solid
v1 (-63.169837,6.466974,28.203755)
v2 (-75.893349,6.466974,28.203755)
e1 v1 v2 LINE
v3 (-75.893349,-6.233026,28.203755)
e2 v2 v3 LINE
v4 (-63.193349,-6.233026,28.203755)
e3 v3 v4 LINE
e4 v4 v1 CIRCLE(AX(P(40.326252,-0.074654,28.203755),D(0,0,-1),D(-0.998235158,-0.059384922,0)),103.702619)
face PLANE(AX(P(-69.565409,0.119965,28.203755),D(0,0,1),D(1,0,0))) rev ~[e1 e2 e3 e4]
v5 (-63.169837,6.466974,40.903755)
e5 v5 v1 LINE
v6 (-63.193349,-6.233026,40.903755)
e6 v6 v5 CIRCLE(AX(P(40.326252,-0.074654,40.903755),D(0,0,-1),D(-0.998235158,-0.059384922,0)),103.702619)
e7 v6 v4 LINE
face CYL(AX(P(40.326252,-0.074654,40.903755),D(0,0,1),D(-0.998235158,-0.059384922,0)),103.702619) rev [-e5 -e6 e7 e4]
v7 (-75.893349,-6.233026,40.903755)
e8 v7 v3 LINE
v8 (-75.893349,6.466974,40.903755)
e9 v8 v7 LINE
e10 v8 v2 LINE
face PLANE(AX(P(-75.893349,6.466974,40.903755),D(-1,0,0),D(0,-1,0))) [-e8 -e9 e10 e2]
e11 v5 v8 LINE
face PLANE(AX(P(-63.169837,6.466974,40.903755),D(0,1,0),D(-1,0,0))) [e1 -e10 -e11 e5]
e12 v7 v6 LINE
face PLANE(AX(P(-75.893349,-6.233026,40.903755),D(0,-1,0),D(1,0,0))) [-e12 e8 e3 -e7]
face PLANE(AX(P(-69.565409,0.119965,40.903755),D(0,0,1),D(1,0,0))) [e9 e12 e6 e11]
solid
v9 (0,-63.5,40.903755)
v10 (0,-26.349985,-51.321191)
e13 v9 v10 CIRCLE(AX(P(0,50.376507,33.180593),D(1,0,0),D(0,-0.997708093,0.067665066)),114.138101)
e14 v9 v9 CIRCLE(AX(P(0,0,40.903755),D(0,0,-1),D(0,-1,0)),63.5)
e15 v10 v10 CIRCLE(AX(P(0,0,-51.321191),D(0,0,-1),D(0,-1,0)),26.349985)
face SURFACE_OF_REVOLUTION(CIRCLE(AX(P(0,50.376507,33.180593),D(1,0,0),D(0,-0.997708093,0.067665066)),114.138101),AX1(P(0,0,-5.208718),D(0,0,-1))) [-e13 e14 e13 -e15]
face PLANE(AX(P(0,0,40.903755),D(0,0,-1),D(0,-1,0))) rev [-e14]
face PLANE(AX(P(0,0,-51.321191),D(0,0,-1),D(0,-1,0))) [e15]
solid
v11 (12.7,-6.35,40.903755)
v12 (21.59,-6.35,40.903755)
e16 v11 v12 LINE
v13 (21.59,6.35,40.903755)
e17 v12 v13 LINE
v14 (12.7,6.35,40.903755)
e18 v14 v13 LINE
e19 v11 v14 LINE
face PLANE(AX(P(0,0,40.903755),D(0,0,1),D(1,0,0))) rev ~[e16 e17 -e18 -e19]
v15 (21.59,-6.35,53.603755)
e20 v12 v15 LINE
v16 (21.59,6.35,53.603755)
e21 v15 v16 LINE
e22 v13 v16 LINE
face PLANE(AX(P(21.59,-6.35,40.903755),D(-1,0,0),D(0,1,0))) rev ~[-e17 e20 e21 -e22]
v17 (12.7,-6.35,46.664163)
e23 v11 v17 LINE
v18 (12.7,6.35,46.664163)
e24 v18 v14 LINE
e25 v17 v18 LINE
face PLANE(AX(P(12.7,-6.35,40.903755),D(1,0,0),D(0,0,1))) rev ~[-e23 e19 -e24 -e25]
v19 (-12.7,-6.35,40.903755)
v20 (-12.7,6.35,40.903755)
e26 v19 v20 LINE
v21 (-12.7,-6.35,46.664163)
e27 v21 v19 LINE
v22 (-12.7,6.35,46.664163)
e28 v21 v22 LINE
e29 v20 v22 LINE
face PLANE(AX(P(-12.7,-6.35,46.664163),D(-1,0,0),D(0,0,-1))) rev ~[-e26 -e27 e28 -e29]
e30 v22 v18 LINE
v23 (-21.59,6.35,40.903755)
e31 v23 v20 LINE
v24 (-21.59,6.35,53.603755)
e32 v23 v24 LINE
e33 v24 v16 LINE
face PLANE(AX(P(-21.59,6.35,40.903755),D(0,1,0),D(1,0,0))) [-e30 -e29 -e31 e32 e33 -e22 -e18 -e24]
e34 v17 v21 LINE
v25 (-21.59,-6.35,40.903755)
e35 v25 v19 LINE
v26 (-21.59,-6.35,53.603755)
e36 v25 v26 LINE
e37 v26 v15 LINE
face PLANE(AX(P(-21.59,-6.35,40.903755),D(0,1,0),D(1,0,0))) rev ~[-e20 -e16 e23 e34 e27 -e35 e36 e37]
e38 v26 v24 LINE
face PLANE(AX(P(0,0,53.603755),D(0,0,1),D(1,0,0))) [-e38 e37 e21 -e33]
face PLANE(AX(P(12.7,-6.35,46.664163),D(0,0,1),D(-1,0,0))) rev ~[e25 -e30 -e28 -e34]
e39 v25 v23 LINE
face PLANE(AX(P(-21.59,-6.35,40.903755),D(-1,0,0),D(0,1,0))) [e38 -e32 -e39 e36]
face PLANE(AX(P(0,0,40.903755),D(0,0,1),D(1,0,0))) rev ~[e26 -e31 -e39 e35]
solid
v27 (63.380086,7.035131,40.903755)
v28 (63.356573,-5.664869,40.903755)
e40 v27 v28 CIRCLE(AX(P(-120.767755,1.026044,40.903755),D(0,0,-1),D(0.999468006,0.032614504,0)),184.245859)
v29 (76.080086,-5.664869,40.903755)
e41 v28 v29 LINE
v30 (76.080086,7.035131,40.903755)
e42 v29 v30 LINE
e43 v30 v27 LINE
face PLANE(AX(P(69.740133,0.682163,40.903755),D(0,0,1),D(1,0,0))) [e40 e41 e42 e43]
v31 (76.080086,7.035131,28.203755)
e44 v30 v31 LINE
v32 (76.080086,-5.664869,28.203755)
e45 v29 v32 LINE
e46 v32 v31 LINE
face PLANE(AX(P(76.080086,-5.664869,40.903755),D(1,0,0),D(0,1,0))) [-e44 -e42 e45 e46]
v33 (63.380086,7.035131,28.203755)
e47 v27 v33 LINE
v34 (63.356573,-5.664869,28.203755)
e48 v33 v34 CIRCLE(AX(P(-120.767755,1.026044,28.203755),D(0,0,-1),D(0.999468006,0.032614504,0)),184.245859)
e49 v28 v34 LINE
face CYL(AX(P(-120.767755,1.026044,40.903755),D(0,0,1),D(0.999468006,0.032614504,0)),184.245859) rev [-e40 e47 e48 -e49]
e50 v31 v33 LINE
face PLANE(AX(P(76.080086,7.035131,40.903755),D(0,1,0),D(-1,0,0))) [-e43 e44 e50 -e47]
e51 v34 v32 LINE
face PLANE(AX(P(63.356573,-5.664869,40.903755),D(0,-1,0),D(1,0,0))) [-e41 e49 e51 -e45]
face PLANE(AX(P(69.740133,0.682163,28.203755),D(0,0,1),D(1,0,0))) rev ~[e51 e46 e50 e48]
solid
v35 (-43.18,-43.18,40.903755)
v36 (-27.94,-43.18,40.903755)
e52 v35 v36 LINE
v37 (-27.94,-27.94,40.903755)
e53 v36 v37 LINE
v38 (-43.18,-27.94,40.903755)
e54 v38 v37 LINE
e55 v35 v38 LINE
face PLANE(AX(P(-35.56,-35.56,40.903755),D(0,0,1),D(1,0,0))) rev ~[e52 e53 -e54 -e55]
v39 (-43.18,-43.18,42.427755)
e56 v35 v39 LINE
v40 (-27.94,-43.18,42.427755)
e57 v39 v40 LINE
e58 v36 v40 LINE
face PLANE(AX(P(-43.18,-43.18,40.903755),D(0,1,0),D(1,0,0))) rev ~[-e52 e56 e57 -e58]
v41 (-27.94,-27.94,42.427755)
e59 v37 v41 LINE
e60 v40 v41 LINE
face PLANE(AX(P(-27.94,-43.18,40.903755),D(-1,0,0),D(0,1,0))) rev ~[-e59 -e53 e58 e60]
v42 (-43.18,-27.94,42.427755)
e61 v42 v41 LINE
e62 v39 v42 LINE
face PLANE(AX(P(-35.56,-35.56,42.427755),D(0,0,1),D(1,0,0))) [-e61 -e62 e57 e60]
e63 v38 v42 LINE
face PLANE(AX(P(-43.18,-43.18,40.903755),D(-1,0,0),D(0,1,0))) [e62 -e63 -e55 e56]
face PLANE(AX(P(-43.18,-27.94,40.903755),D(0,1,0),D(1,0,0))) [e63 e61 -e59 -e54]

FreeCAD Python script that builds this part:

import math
import FreeCAD as App
import Part
import Sketcher
Q = App.Units.Quantity

doc = App.newDocument("Part")
params = doc.addObject("Spreadsheet::Sheet", "Params")
for row, (alias, value) in enumerate([
    ("sketch1_width", "2.5 in"),
    ("revolution_angle", "360 deg"),
    ("sketch2_width", "1.7 in"),
    ("sketch2_height", "0.5 in"),
    ("pad1_length", "0.5 in"),
    ("sketch3_width", "1 in"),
    ("pocket1_length", "1 in"),
    ("sketch4_width", "0.6 in"),
    ("pad2_length", "0.06 in"),
    ("sketch5_width", "0.5 in"),
    ("pad3_length", "0.5 in"),
    ("sketch6_width", "0.5 in"),
    ("pad4_length", "0.5 in"),
], start=1):
    params.set(f"A{row}", alias)
    params.set(f"B{row}", "=" + value)
    params.setAlias(f"B{row}", alias)

body = doc.addObject("PartDesign::Body", "Body")

# Sketch on YZ plane
sketch1 = body.newObject("Sketcher::SketchObject", "Sketch")
sketch1.AttachmentSupport = (doc.getObject("YZ_Plane"), [""])
sketch1.MapMode = "FlatFace"
sketch1.addGeometry(Part.LineSegment(App.Vector(0, -51, 0), App.Vector(0, 41, 0)), False)
sketch1.addGeometry(Part.LineSegment(App.Vector(0, 41, 0), App.Vector(-64, 41, 0)), False)
sketch1.addGeometry(Part.ArcOfCircle(Part.Circle(App.Vector(50, 33, 0), App.Vector(0, 0, 1), 114), math.radians(176), math.radians(228)), False)
sketch1.addGeometry(Part.LineSegment(App.Vector(-26, -51, 0), App.Vector(0, -51, 0)), False)
sketch1.addConstraint(Sketcher.Constraint("Coincident", 0, 2, 1, 1))
sketch1.addConstraint(Sketcher.Constraint("Coincident", 1, 2, 2, 1))
sketch1.addConstraint(Sketcher.Constraint("Coincident", 2, 2, 3, 1))
sketch1.addConstraint(Sketcher.Constraint("Coincident", 3, 2, 0, 1))
sketch1.addConstraint(Sketcher.Constraint("Vertical", 0))
sketch1.addConstraint(Sketcher.Constraint("Horizontal", 1))
sketch1.addConstraint(Sketcher.Constraint("Horizontal", 3))
sketch1.addConstraint(Sketcher.Constraint("PointOnObject", 0, 2, -2))
sketch1.addConstraint(Sketcher.Constraint("DistanceX", 1, 2, 1, 1, Q("2.5 in")))
sketch1.addConstraint(Sketcher.Constraint("Radius", 2, 114.138101))
sketch1.addConstraint(Sketcher.Constraint("DistanceX", 3, 1, 3, 2, 26.349985))
sketch1.addConstraint(Sketcher.Constraint("DistanceY", 0, 1, 0, 2, 92.224946))
sketch1.addConstraint(Sketcher.Constraint("DistanceY", 2, 2, -1, 1, 51.321191))
sketch1.setExpression("Constraints[8]", "Params.sketch1_width")
revolution = body.newObject("PartDesign::Revolution", "Revolution")
revolution.Profile = sketch1
revolution.ReferenceAxis = (sketch1, ["V_Axis"])
revolution.setExpression("Angle", "Params.revolution_angle")
body2 = doc.addObject("PartDesign::Body", "Body001")

# Sketch on XY plane
sketch2 = body2.newObject("Sketcher::SketchObject", "Sketch001")
sketch2.AttachmentSupport = (doc.getObject("XY_Plane001"), [""])
sketch2.MapMode = "FlatFace"
sketch2.AttachmentOffset = App.Placement(App.Vector(0, 0, 40.903755), App.Rotation())
sketch2.addGeometry(Part.LineSegment(App.Vector(-22, 6, 0), App.Vector(-22, -6, 0)), False)
sketch2.addGeometry(Part.LineSegment(App.Vector(-22, -6, 0), App.Vector(22, -6, 0)), False)
sketch2.addGeometry(Part.LineSegment(App.Vector(22, -6, 0), App.Vector(22, 6, 0)), False)
sketch2.addGeometry(Part.LineSegment(App.Vector(22, 6, 0), App.Vector(-22, 6, 0)), False)
sketch2.addConstraint(Sketcher.Constraint("Coincident", 0, 2, 1, 1))
sketch2.addConstraint(Sketcher.Constraint("Coincident", 1, 2, 2, 1))
sketch2.addConstraint(Sketcher.Constraint("Coincident", 2, 2, 3, 1))
sketch2.addConstraint(Sketcher.Constraint("Coincident", 3, 2, 0, 1))
sketch2.addConstraint(Sketcher.Constraint("Vertical", 0))
sketch2.addConstraint(Sketcher.Constraint("Horizontal", 1))
sketch2.addConstraint(Sketcher.Constraint("Vertical", 2))
sketch2.addConstraint(Sketcher.Constraint("Horizontal", 3))
sketch2.addConstraint(Sketcher.Constraint("Symmetric", 0, 2, 2, 2, -1, 1))
sketch2.addConstraint(Sketcher.Constraint("DistanceX", 1, 1, 1, 2, Q("1.7 in")))
sketch2.addConstraint(Sketcher.Constraint("DistanceY", 0, 2, 0, 1, Q("0.5 in")))
sketch2.setExpression("Constraints[9]", "Params.sketch2_width")
sketch2.setExpression("Constraints[10]", "Params.sketch2_height")
pad1 = body2.newObject("PartDesign::Pad", "Pad")
pad1.Profile = sketch2
pad1.setExpression("Length", "Params.pad1_length")

# Sketch on XZ plane
sketch3 = body2.newObject("Sketcher::SketchObject", "Sketch002")
sketch3.AttachmentSupport = (doc.getObject("XZ_Plane001"), [""])
sketch3.MapMode = "FlatFace"
sketch3.AttachmentOffset = App.Placement(App.Vector(0, 0, 0.25 * 25.4), App.Rotation())
sketch3.addGeometry(Part.LineSegment(App.Vector(-13, 41, 0), App.Vector(13, 41, 0)), False)
sketch3.addGeometry(Part.LineSegment(App.Vector(13, 41, 0), App.Vector(13, 47, 0)), False)
sketch3.addGeometry(Part.LineSegment(App.Vector(13, 47, 0), App.Vector(-13, 47, 0)), False)
sketch3.addGeometry(Part.LineSegment(App.Vector(-13, 47, 0), App.Vector(-13, 41, 0)), False)
sketch3.addConstraint(Sketcher.Constraint("Coincident", 0, 2, 1, 1))
sketch3.addConstraint(Sketcher.Constraint("Coincident", 1, 2, 2, 1))
sketch3.addConstraint(Sketcher.Constraint("Coincident", 2, 2, 3, 1))
sketch3.addConstraint(Sketcher.Constraint("Coincident", 3, 2, 0, 1))
sketch3.addConstraint(Sketcher.Constraint("Horizontal", 0))
sketch3.addConstraint(Sketcher.Constraint("Vertical", 1))
sketch3.addConstraint(Sketcher.Constraint("Horizontal", 2))
sketch3.addConstraint(Sketcher.Constraint("Vertical", 3))
sketch3.addConstraint(Sketcher.Constraint("DistanceX", 0, 1, 0, 2, Q("1 in")))
sketch3.addConstraint(Sketcher.Constraint("DistanceX", -1, 1, 0, 2, Q("0.5 in")))
sketch3.addConstraint(Sketcher.Constraint("DistanceY", 1, 1, 1, 2, 5.760408))
sketch3.addConstraint(Sketcher.Constraint("DistanceY", -1, 1, 0, 2, 40.903755))
sketch3.setExpression("Constraints[8]", "Params.sketch3_width")
pocket1 = body2.newObject("PartDesign::Pocket", "Pocket")
pocket1.Profile = sketch3
pocket1.setExpression("Length", "Params.pocket1_length")
body3 = doc.addObject("PartDesign::Body", "Body002")

# Sketch on XY plane
sketch4 = body3.newObject("Sketcher::SketchObject", "Sketch003")
sketch4.AttachmentSupport = (doc.getObject("XY_Plane002"), [""])
sketch4.MapMode = "FlatFace"
sketch4.AttachmentOffset = App.Placement(App.Vector(0, 0, 40.903755), App.Rotation())
sketch4.addGeometry(Part.LineSegment(App.Vector(-43, -28, 0), App.Vector(-43, -43, 0)), False)
sketch4.addGeometry(Part.LineSegment(App.Vector(-43, -43, 0), App.Vector(-28, -43, 0)), False)
sketch4.addGeometry(Part.LineSegment(App.Vector(-28, -43, 0), App.Vector(-28, -28, 0)), False)
sketch4.addGeometry(Part.LineSegment(App.Vector(-28, -28, 0), App.Vector(-43, -28, 0)), False)
sketch4.addConstraint(Sketcher.Constraint("Coincident", 0, 2, 1, 1))
sketch4.addConstraint(Sketcher.Constraint("Coincident", 1, 2, 2, 1))
sketch4.addConstraint(Sketcher.Constraint("Coincident", 2, 2, 3, 1))
sketch4.addConstraint(Sketcher.Constraint("Coincident", 3, 2, 0, 1))
sketch4.addConstraint(Sketcher.Constraint("Vertical", 0))
sketch4.addConstraint(Sketcher.Constraint("Horizontal", 1))
sketch4.addConstraint(Sketcher.Constraint("Vertical", 2))
sketch4.addConstraint(Sketcher.Constraint("Horizontal", 3))
sketch4.addConstraint(Sketcher.Constraint("Equal", 3, 0))
sketch4.addConstraint(Sketcher.Constraint("DistanceX", 1, 1, 1, 2, Q("0.6 in")))
sketch4.addConstraint(Sketcher.Constraint("DistanceX", 0, 2, -1, 1, Q("1.7 in")))
sketch4.addConstraint(Sketcher.Constraint("DistanceY", 0, 2, -1, 1, Q("1.7 in")))
sketch4.setExpression("Constraints[9]", "Params.sketch4_width")
pad2 = body3.newObject("PartDesign::Pad", "Pad001")
pad2.Profile = sketch4
pad2.setExpression("Length", "Params.pad2_length")
body4 = doc.addObject("PartDesign::Body", "Body003")

# Sketch on XY plane
sketch5 = body4.newObject("Sketcher::SketchObject", "Sketch004")
sketch5.AttachmentSupport = (doc.getObject("XY_Plane003"), [""])
sketch5.MapMode = "FlatFace"
sketch5.AttachmentOffset = App.Placement(App.Vector(0, 0, 40.903755), App.Rotation())
sketch5.addGeometry(Part.LineSegment(App.Vector(-76, 6, 0), App.Vector(-76, -6, 0)), False)
sketch5.addGeometry(Part.LineSegment(App.Vector(-76, -6, 0), App.Vector(-63, -6, 0)), False)
sketch5.addGeometry(Part.ArcOfCircle(Part.Circle(App.Vector(40, 0, 0), App.Vector(0, 0, 1), 104), math.radians(176.38), math.radians(183.4)), False)
sketch5.addGeometry(Part.LineSegment(App.Vector(-63, 6, 0), App.Vector(-76, 6, 0)), False)
sketch5.addConstraint(Sketcher.Constraint("Coincident", 0, 2, 1, 1))
sketch5.addConstraint(Sketcher.Constraint("Coincident", 1, 2, 2, 2))
sketch5.addConstraint(Sketcher.Constraint("Coincident", 2, 1, 3, 1))
sketch5.addConstraint(Sketcher.Constraint("Coincident", 3, 2, 0, 1))
sketch5.addConstraint(Sketcher.Constraint("Vertical", 0))
sketch5.addConstraint(Sketcher.Constraint("Horizontal", 1))
sketch5.addConstraint(Sketcher.Constraint("Horizontal", 3))
sketch5.addConstraint(Sketcher.Constraint("Equal", 1, 0))
sketch5.addConstraint(Sketcher.Constraint("DistanceX", 1, 1, 1, 2, Q("0.5 in")))
sketch5.addConstraint(Sketcher.Constraint("Radius", 2, 103.702619))
sketch5.addConstraint(Sketcher.Constraint("DistanceX", 0, 2, 2, 3, 116.219601))
sketch5.addConstraint(Sketcher.Constraint("DistanceX", -1, 1, 2, 3, 40.326252))
sketch5.addConstraint(Sketcher.Constraint("DistanceY", 2, 3, -1, 1, 0.074654))
sketch5.setExpression("Constraints[8]", "Params.sketch5_width")
pad3 = body4.newObject("PartDesign::Pad", "Pad002")
pad3.Profile = sketch5
pad3.setExpression("Length", "Params.pad3_length")
pad3.Reversed = True
body5 = doc.addObject("PartDesign::Body", "Body004")

# Sketch on XY plane
sketch6 = body5.newObject("Sketcher::SketchObject", "Sketch005")
sketch6.AttachmentSupport = (doc.getObject("XY_Plane004"), [""])
sketch6.MapMode = "FlatFace"
sketch6.AttachmentOffset = App.Placement(App.Vector(0, 0, 40.903755), App.Rotation())
sketch6.addGeometry(Part.LineSegment(App.Vector(76, -6, 0), App.Vector(76, 7, 0)), False)
sketch6.addGeometry(Part.LineSegment(App.Vector(76, 7, 0), App.Vector(63, 7, 0)), False)
sketch6.addGeometry(Part.ArcOfCircle(Part.Circle(App.Vector(-121, 1, 0), App.Vector(0, 0, 1), 184), math.radians(-2.08), math.radians(1.87)), False)
sketch6.addGeometry(Part.LineSegment(App.Vector(63, -6, 0), App.Vector(76, -6, 0)), False)
sketch6.addConstraint(Sketcher.Constraint("Coincident", 0, 2, 1, 1))
sketch6.addConstraint(Sketcher.Constraint("Coincident", 1, 2, 2, 2))
sketch6.addConstraint(Sketcher.Constraint("Coincident", 2, 1, 3, 1))
sketch6.addConstraint(Sketcher.Constraint("Coincident", 3, 2, 0, 1))
sketch6.addConstraint(Sketcher.Constraint("Vertical", 0))
sketch6.addConstraint(Sketcher.Constraint("Horizontal", 1))
sketch6.addConstraint(Sketcher.Constraint("Horizontal", 3))
sketch6.addConstraint(Sketcher.Constraint("Equal", 1, 0))
sketch6.addConstraint(Sketcher.Constraint("DistanceX", 1, 2, 1, 1, Q("0.5 in")))
sketch6.addConstraint(Sketcher.Constraint("Radius", 2, 184.245859))
sketch6.addConstraint(Sketcher.Constraint("DistanceX", 3, 1, 3, 2, 12.723513))
sketch6.addConstraint(Sketcher.Constraint("DistanceY", -1, 1, 0, 2, 7.035131))
sketch6.addConstraint(Sketcher.Constraint("DistanceX", 2, 3, -1, 1, 120.767755))
sketch6.setExpression("Constraints[8]", "Params.sketch6_width")
pad4 = body5.newObject("PartDesign::Pad", "Pad003")
pad4.Profile = sketch6
pad4.setExpression("Length", "Params.pad4_length")
pad4.Reversed = True

doc.recompute()
